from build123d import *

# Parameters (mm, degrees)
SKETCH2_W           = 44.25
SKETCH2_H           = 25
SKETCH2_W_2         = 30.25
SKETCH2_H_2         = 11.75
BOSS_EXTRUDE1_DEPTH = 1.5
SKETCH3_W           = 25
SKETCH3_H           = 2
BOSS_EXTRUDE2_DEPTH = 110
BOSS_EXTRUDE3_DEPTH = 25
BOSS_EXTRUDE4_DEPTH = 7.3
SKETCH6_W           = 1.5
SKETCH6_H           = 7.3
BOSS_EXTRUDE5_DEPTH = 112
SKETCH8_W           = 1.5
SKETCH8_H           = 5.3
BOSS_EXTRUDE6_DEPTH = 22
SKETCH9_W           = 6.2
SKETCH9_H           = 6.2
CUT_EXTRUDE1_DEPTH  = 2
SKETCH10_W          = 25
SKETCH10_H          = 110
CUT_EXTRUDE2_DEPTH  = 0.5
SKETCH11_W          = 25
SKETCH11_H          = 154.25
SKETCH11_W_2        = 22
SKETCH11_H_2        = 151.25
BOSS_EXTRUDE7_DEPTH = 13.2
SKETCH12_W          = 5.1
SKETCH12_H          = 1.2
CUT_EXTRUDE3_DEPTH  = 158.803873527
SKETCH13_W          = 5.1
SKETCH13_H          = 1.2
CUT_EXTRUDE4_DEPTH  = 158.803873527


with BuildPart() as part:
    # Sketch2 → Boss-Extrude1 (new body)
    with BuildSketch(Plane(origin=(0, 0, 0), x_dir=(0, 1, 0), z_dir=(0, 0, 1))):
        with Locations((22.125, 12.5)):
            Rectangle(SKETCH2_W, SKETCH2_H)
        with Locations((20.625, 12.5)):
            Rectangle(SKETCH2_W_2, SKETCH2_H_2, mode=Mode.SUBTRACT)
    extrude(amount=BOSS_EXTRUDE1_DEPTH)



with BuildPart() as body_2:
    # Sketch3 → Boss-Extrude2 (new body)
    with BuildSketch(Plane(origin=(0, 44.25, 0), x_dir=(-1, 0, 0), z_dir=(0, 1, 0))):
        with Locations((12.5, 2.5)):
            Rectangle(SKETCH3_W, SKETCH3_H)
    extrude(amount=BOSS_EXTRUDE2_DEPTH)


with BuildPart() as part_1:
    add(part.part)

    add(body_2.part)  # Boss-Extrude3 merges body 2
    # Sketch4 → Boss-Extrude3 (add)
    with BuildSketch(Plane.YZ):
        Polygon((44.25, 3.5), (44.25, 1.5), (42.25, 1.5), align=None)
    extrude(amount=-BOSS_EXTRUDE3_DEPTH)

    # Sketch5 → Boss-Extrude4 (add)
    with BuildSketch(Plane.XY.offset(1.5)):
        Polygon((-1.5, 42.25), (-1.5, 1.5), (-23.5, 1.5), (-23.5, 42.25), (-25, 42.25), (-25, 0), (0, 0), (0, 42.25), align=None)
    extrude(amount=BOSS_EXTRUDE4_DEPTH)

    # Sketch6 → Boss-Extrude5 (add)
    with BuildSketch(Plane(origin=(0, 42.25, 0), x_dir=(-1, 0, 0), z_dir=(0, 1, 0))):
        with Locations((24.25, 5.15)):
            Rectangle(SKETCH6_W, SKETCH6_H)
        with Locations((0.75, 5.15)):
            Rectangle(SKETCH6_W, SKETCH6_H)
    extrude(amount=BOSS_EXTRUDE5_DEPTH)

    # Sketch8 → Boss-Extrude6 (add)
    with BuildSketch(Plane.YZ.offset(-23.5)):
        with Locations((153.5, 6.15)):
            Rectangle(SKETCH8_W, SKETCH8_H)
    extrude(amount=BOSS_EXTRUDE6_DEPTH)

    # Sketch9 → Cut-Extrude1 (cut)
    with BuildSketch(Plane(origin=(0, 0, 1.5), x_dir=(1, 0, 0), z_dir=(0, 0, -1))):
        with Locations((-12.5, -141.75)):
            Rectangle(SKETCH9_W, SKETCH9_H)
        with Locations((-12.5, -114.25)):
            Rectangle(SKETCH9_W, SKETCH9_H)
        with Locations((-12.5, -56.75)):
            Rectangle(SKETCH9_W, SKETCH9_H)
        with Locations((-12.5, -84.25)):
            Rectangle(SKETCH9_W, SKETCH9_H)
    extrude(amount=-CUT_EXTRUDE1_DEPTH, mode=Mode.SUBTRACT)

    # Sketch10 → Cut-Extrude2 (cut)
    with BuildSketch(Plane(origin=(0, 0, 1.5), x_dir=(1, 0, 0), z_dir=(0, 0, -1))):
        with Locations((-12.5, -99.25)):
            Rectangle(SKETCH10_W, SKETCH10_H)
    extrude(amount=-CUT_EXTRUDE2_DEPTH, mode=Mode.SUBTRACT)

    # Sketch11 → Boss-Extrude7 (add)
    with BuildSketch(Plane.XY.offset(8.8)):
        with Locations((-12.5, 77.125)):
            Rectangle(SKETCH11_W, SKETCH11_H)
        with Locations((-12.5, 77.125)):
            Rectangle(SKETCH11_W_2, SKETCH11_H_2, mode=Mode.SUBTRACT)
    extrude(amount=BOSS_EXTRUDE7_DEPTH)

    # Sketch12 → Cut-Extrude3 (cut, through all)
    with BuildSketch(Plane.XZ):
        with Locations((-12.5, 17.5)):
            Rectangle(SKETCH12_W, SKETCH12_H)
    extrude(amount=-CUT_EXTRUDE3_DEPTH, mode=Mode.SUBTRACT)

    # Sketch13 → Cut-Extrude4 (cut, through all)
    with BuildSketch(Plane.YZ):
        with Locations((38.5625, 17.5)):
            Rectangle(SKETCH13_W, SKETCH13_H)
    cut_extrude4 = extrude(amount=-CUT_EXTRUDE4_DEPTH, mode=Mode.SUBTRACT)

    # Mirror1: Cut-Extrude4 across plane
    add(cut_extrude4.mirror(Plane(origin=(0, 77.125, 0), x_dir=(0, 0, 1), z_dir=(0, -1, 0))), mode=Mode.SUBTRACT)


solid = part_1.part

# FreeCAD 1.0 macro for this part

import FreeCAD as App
import Part
import Sketcher

V = App.Vector
Q = App.Units.Quantity

doc = App.newDocument("Part")
body = doc.addObject("PartDesign::Body", "Body")

# Sketch on XY plane
sketch1 = doc.addObject("Sketcher::SketchObject", "Sketch")
body.addObject(sketch1)
sketch1.AttachmentSupport = (doc.XY_Plane, [""])
sketch1.MapMode = "FlatFace"
sketch1.addGeometry(Part.LineSegment(V(-25, 0, 0), V(0, 0, 0)), False)
sketch1.addGeometry(Part.LineSegment(V(0, 0, 0), V(0, 44, 0)), False)
sketch1.addGeometry(Part.LineSegment(V(0, 44, 0), V(-25, 44, 0)), False)
sketch1.addGeometry(Part.LineSegment(V(-25, 44, 0), V(-25, 0, 0)), False)
sketch1.addGeometry(Part.LineSegment(V(-7, 36, 0), V(-7, 6, 0)), False)
sketch1.addGeometry(Part.LineSegment(V(-7, 6, 0), V(-18, 6, 0)), False)
sketch1.addGeometry(Part.LineSegment(V(-18, 6, 0), V(-18, 36, 0)), False)
sketch1.addGeometry(Part.LineSegment(V(-18, 36, 0), V(-7, 36, 0)), False)
sketch1.addConstraint(Sketcher.Constraint("Coincident", 0, 2, 1, 1))
sketch1.addConstraint(Sketcher.Constraint("Coincident", 1, 2, 2, 1))
sketch1.addConstraint(Sketcher.Constraint("Coincident", 2, 2, 3, 1))
sketch1.addConstraint(Sketcher.Constraint("Coincident", 3, 2, 0, 1))
sketch1.addConstraint(Sketcher.Constraint("Coincident", 4, 2, 5, 1))
sketch1.addConstraint(Sketcher.Constraint("Coincident", 5, 2, 6, 1))
sketch1.addConstraint(Sketcher.Constraint("Coincident", 6, 2, 7, 1))
sketch1.addConstraint(Sketcher.Constraint("Coincident", 7, 2, 4, 1))
sketch1.addConstraint(Sketcher.Constraint("Horizontal", 0))
sketch1.addConstraint(Sketcher.Constraint("Vertical", 1))
sketch1.addConstraint(Sketcher.Constraint("Horizontal", 2))
sketch1.addConstraint(Sketcher.Constraint("Vertical", 3))
sketch1.addConstraint(Sketcher.Constraint("Vertical", 4))
sketch1.addConstraint(Sketcher.Constraint("Horizontal", 5))
sketch1.addConstraint(Sketcher.Constraint("Vertical", 6))
sketch1.addConstraint(Sketcher.Constraint("Horizontal", 7))
sketch1.addConstraint(Sketcher.Constraint("Coincident", 0, 2, -1, 1))
sketch1.addConstraint(Sketcher.Constraint("DistanceX", 0, 1, 0, 2, Q("25 mm")))
sketch1.addConstraint(Sketcher.Constraint("DistanceX", 5, 2, 5, 1, Q("11.75 mm")))
sketch1.addConstraint(Sketcher.Constraint("DistanceY", 1, 1, 1, 2, Q("44.25 mm")))
sketch1.addConstraint(Sketcher.Constraint("DistanceY", 4, 2, 4, 1, Q("30.25 mm")))
sketch1.addConstraint(Sketcher.Constraint("DistanceY", -1, 1, 4, 2, Q("5.5 mm")))
sketch1.addConstraint(Sketcher.Constraint("DistanceX", 4, 2, -1, 1, Q("6.625 mm")))
pad1 = doc.addObject("PartDesign::Pad", "Pad")
body.addObject(pad1)
pad1.Profile = sketch1
pad1.Length = 1.5
body2 = doc.addObject("PartDesign::Body", "Body001")

# Sketch on XZ plane
sketch2 = doc.addObject("Sketcher::SketchObject", "Sketch001")
body2.addObject(sketch2)
sketch2.AttachmentSupport = (doc.getObject("XZ_Plane001"), [""])
sketch2.MapMode = "FlatFace"
sketch2.AttachmentOffset = App.Placement(V(0, 0, -44.25), App.Rotation())
sketch2.addGeometry(Part.LineSegment(V(0, 3.5, 0), V(0, 1.5, 0)), False)
sketch2.addGeometry(Part.LineSegment(V(0, 1.5, 0), V(-25, 1.5, 0)), False)
sketch2.addGeometry(Part.LineSegment(V(-25, 1.5, 0), V(-25, 3.5, 0)), False)
sketch2.addGeometry(Part.LineSegment(V(-25, 3.5, 0), V(0, 3.5, 0)), False)
sketch2.addConstraint(Sketcher.Constraint("Coincident", 0, 2, 1, 1))
sketch2.addConstraint(Sketcher.Constraint("Coincident", 1, 2, 2, 1))
sketch2.addConstraint(Sketcher.Constraint("Coincident", 2, 2, 3, 1))
sketch2.addConstraint(Sketcher.Constraint("Coincident", 3, 2, 0, 1))
sketch2.addConstraint(Sketcher.Constraint("Vertical", 0))
sketch2.addConstraint(Sketcher.Constraint("Horizontal", 1))
sketch2.addConstraint(Sketcher.Constraint("Vertical", 2))
sketch2.addConstraint(Sketcher.Constraint("Horizontal", 3))
sketch2.addConstraint(Sketcher.Constraint("PointOnObject", 0, 2, -2))
sketch2.addConstraint(Sketcher.Constraint("DistanceX", 1, 2, 1, 1, Q("25 mm")))
sketch2.addConstraint(Sketcher.Constraint("DistanceY", 0, 2, 0, 1, Q("2 mm")))
sketch2.addConstraint(Sketcher.Constraint("DistanceY", -1, 1, 0, 2, Q("1.5 mm")))
pad2 = doc.addObject("PartDesign::Pad", "Pad001")
body2.addObject(pad2)
pad2.Profile = sketch2
pad2.Length = 110
pad2.Reversed = True
body.AllowCompound = True
doc.recompute()

boolean = doc.addObject("PartDesign::Boolean", "Boolean")
body.addObject(boolean)
boolean.Type = "Fuse"
boolean.addObjects([body2])

# Sketch on YZ plane
sketch3 = doc.addObject("Sketcher::SketchObject", "Sketch002")
body.addObject(sketch3)
sketch3.AttachmentSupport = (doc.YZ_Plane, [""])
sketch3.MapMode = "FlatFace"
sketch3.addGeometry(Part.LineSegment(V(44.2, 1.5, 0), V(44.2, 3.5, 0)), False)
sketch3.addGeometry(Part.LineSegment(V(44.2, 3.5, 0), V(42.2, 1.5, 0)), False)
sketch3.addGeometry(Part.LineSegment(V(42.2, 1.5, 0), V(44.2, 1.5, 0)), False)
sketch3.addConstraint(Sketcher.Constraint("Coincident", 0, 2, 1, 1))
sketch3.addConstraint(Sketcher.Constraint("Coincident", 1, 2, 2, 1))
sketch3.addConstraint(Sketcher.Constraint("Coincident", 2, 2, 0, 1))
sketch3.addConstraint(Sketcher.Constraint("Vertical", 0))
sketch3.addConstraint(Sketcher.Constraint("Horizontal", 2))
sketch3.addConstraint(Sketcher.Constraint("Equal", 2, 0))
sketch3.addConstraint(Sketcher.Constraint("DistanceX", 2, 1, 2, 2, Q("2 mm")))
sketch3.addConstraint(Sketcher.Constraint("DistanceY", -1, 1, 0, 2, Q("3.5 mm")))
sketch3.addConstraint(Sketcher.Constraint("DistanceX", -1, 1, 0, 2, Q("44.25 mm")))
pad3 = doc.addObject("PartDesign::Pad", "Pad002")
body.addObject(pad3)
pad3.Profile = sketch3
pad3.Length = 25
pad3.Reversed = True

# Sketch on XY plane
sketch4 = doc.addObject("Sketcher::SketchObject", "Sketch003")
body.addObject(sketch4)
sketch4.AttachmentSupport = (doc.XY_Plane, [""])
sketch4.MapMode = "FlatFace"
sketch4.AttachmentOffset = App.Placement(V(0, 0, 1.5), App.Rotation())
sketch4.addGeometry(Part.LineSegment(V(-1.5, 42.2, 0), V(-1.5, 1.5, 0)), False)
sketch4.addGeometry(Part.LineSegment(V(-1.5, 1.5, 0), V(-23.5, 1.5, 0)), False)
sketch4.addGeometry(Part.LineSegment(V(-23.5, 1.5, 0), V(-23.5, 42.2, 0)), False)
sketch4.addGeometry(Part.LineSegment(V(-23.5, 42.2, 0), V(-25, 42.2, 0)), False)
sketch4.addGeometry(Part.LineSegment(V(-25, 42.2, 0), V(-25, 0, 0)), False)
sketch4.addGeometry(Part.LineSegment(V(-25, 0, 0), V(0, 0, 0)), False)
sketch4.addGeometry(Part.LineSegment(V(0, 0, 0), V(0, 42.2, 0)), False)
sketch4.addGeometry(Part.LineSegment(V(0, 42.2, 0), V(-1.5, 42.2, 0)), False)
sketch4.addConstraint(Sketcher.Constraint("Coincident", 0, 2, 1, 1))
sketch4.addConstraint(Sketcher.Constraint("Coincident", 1, 2, 2, 1))
sketch4.addConstraint(Sketcher.Constraint("Coincident", 2, 2, 3, 1))
sketch4.addConstraint(Sketcher.Constraint("Coincident", 3, 2, 4, 1))
sketch4.addConstraint(Sketcher.Constraint("Coincident", 4, 2, 5, 1))
sketch4.addConstraint(Sketcher.Constraint("Coincident", 5, 2, 6, 1))
sketch4.addConstraint(Sketcher.Constraint("Coincident", 6, 2, 7, 1))
sketch4.addConstraint(Sketcher.Constraint("Coincident", 7, 2, 0, 1))
sketch4.addConstraint(Sketcher.Constraint("Vertical", 0))
sketch4.addConstraint(Sketcher.Constraint("Horizontal", 1))
sketch4.addConstraint(Sketcher.Constraint("Vertical", 2))
sketch4.addConstraint(Sketcher.Constraint("Horizontal", 3))
sketch4.addConstraint(Sketcher.Constraint("Vertical", 4))
sketch4.addConstraint(Sketcher.Constraint("Horizontal", 5))
sketch4.addConstraint(Sketcher.Constraint("Vertical", 6))
sketch4.addConstraint(Sketcher.Constraint("Horizontal", 7))
sketch4.addConstraint(Sketcher.Constraint("Coincident", 5, 2, -1, 1))
sketch4.addConstraint(Sketcher.Constraint("Horizontal", 3, 2, 6, 2))
sketch4.addConstraint(Sketcher.Constraint("Equal", 3, 7))
sketch4.addConstraint(Sketcher.Constraint("DistanceX", 1, 2, 1, 1, Q("22 mm")))
sketch4.addConstraint(Sketcher.Constraint("DistanceX", 5, 1, 5, 2, Q("25 mm")))
sketch4.addConstraint(Sketcher.Constraint("DistanceY", 0, 2, 0, 1, Q("40.75 mm")))
sketch4.addConstraint(Sketcher.Constraint("DistanceY", 4, 2, 4, 1, Q("42.25 mm")))
pad4 = doc.addObject("PartDesign::Pad", "Pad003")
body.addObject(pad4)
pad4.Profile = sketch4
pad4.Length = 7.3

# Sketch on XZ plane
sketch5 = doc.addObject("Sketcher::SketchObject", "Sketch004")
body.addObject(sketch5)
sketch5.AttachmentSupport = (doc.XZ_Plane, [""])
sketch5.MapMode = "FlatFace"
sketch5.AttachmentOffset = App.Placement(V(0, 0, -42.25), App.Rotation())
sketch5.addGeometry(Part.LineSegment(V(-23.5, 8.8, 0), V(-23.5, 1.5, 0)), False)
sketch5.addGeometry(Part.LineSegment(V(-23.5, 1.5, 0), V(-25, 1.5, 0)), False)
sketch5.addGeometry(Part.LineSegment(V(-25, 1.5, 0), V(-25, 8.8, 0)), False)
sketch5.addGeometry(Part.LineSegment(V(-25, 8.8, 0), V(-23.5, 8.8, 0)), False)
sketch5.addGeometry(Part.LineSegment(V(0, 8.8, 0), V(0, 1.5, 0)), False)
sketch5.addGeometry(Part.LineSegment(V(0, 1.5, 0), V(-1.5, 1.5, 0)), False)
sketch5.addGeometry(Part.LineSegment(V(-1.5, 1.5, 0), V(-1.5, 8.8, 0)), False)
sketch5.addGeometry(Part.LineSegment(V(-1.5, 8.8, 0), V(0, 8.8, 0)), False)
sketch5.addConstraint(Sketcher.Constraint("Coincident", 0, 2, 1, 1))
sketch5.addConstraint(Sketcher.Constraint("Coincident", 1, 2, 2, 1))
sketch5.addConstraint(Sketcher.Constraint("Coincident", 2, 2, 3, 1))
sketch5.addConstraint(Sketcher.Constraint("Coincident", 3, 2, 0, 1))
sketch5.addConstraint(Sketcher.Constraint("Coincident", 4, 2, 5, 1))
sketch5.addConstraint(Sketcher.Constraint("Coincident", 5, 2, 6, 1))
sketch5.addConstraint(Sketcher.Constraint("Coincident", 6, 2, 7, 1))
sketch5.addConstraint(Sketcher.Constraint("Coincident", 7, 2, 4, 1))
sketch5.addConstraint(Sketcher.Constraint("Vertical", 0))
sketch5.addConstraint(Sketcher.Constraint("Horizontal", 1))
sketch5.addConstraint(Sketcher.Constraint("Vertical", 2))
sketch5.addConstraint(Sketcher.Constraint("Horizontal", 3))
sketch5.addConstraint(Sketcher.Constraint("Vertical", 4))
sketch5.addConstraint(Sketcher.Constraint("Horizontal", 5))
sketch5.addConstraint(Sketcher.Constraint("Vertical", 6))
sketch5.addConstraint(Sketcher.Constraint("Horizontal", 7))
sketch5.addConstraint(Sketcher.Constraint("PointOnObject", 4, 2, -2))
sketch5.addConstraint(Sketcher.Constraint("Horizontal", 1, 2, 4, 2))
sketch5.addConstraint(Sketcher.Constraint("Horizontal", 3, 2, 6, 2))
sketch5.addConstraint(Sketcher.Constraint("Equal", 3, 5))
sketch5.addConstraint(Sketcher.Constraint("DistanceX", 1, 2, 1, 1, Q("1.5 mm")))
sketch5.addConstraint(Sketcher.Constraint("DistanceY", 0, 2, 0, 1, Q("7.3 mm")))
sketch5.addConstraint(Sketcher.Constraint("DistanceX", 1, 2, -1, 1, Q("25 mm")))
sketch5.addConstraint(Sketcher.Constraint("DistanceY", -1, 1, 0, 2, Q("1.5 mm")))
pad5 = doc.addObject("PartDesign::Pad", "Pad004")
body.addObject(pad5)
pad5.Profile = sketch5
pad5.Length = 112
pad5.Reversed = True

# Sketch on YZ plane
sketch6 = doc.addObject("Sketcher::SketchObject", "Sketch005")
body.addObject(sketch6)
sketch6.AttachmentSupport = (doc.YZ_Plane, [""])
sketch6.MapMode = "FlatFace"
sketch6.AttachmentOffset = App.Placement(V(0, 0, -23.5), App.Rotation())
sketch6.addGeometry(Part.LineSegment(V(152.8, 8.8, 0), V(152.8, 3.5, 0)), False)
sketch6.addGeometry(Part.LineSegment(V(152.8, 3.5, 0), V(154.2, 3.5, 0)), False)
sketch6.addGeometry(Part.LineSegment(V(154.2, 3.5, 0), V(154.2, 8.8, 0)), False)
sketch6.addGeometry(Part.LineSegment(V(154.2, 8.8, 0), V(152.8, 8.8, 0)), False)
sketch6.addConstraint(Sketcher.Constraint("Coincident", 0, 2, 1, 1))
sketch6.addConstraint(Sketcher.Constraint("Coincident", 1, 2, 2, 1))
sketch6.addConstraint(Sketcher.Constraint("Coincident", 2, 2, 3, 1))
sketch6.addConstraint(Sketcher.Constraint("Coincident", 3, 2, 0, 1))
sketch6.addConstraint(Sketcher.Constraint("Vertical", 0))
sketch6.addConstraint(Sketcher.Constraint("Horizontal", 1))
sketch6.addConstraint(Sketcher.Constraint("Vertical", 2))
sketch6.addConstraint(Sketcher.Constraint("Horizontal", 3))
sketch6.addConstraint(Sketcher.Constraint("DistanceX", 1, 1, 1, 2, Q("1.5 mm")))
sketch6.addConstraint(Sketcher.Constraint("DistanceY", 0, 2, 0, 1, Q("5.3 mm")))
sketch6.addConstraint(Sketcher.Constraint("DistanceY", -1, 1, 0, 2, Q("3.5 mm")))
sketch6.addConstraint(Sketcher.Constraint("DistanceX", -1, 1, 0, 2, Q("152.75 mm")))
pad6 = doc.addObject("PartDesign::Pad", "Pad005")
body.addObject(pad6)
pad6.Profile = sketch6
pad6.Length = 22

# Sketch on XY plane
sketch7 = doc.addObject("Sketcher::SketchObject", "Sketch006")
body.addObject(sketch7)
sketch7.AttachmentSupport = (doc.XY_Plane, [""])
sketch7.MapMode = "FlatFace"
sketch7.AttachmentOffset = App.Placement(V(0, 0, 1.5), App.Rotation())
sketch7.addGeometry(Part.LineSegment(V(-16, 139, 0), V(-16, 145, 0)), False)
sketch7.addGeometry(Part.LineSegment(V(-16, 145, 0), V(-9, 145, 0)), False)
sketch7.addGeometry(Part.LineSegment(V(-9, 145, 0), V(-9, 139, 0)), False)
sketch7.addGeometry(Part.LineSegment(V(-9, 139, 0), V(-16, 139, 0)), False)
sketch7.addGeometry(Part.LineSegment(V(-16, 111, 0), V(-16, 117, 0)), False)
sketch7.addGeometry(Part.LineSegment(V(-16, 117, 0), V(-9, 117, 0)), False)
sketch7.addGeometry(Part.LineSegment(V(-9, 117, 0), V(-9, 111, 0)), False)
sketch7.addGeometry(Part.LineSegment(V(-9, 111, 0), V(-16, 111, 0)), False)
sketch7.addGeometry(Part.LineSegment(V(-16, 54, 0), V(-16, 60, 0)), False)
sketch7.addGeometry(Part.LineSegment(V(-16, 60, 0), V(-9, 60, 0)), False)
sketch7.addGeometry(Part.LineSegment(V(-9, 60, 0), V(-9, 54, 0)), False)
sketch7.addGeometry(Part.LineSegment(V(-9, 54, 0), V(-16, 54, 0)), False)
sketch7.addGeometry(Part.LineSegment(V(-16, 81, 0), V(-16, 87, 0)), False)
sketch7.addGeometry(Part.LineSegment(V(-16, 87, 0), V(-9, 87, 0)), False)
sketch7.addGeometry(Part.LineSegment(V(-9, 87, 0), V(-9, 81, 0)), False)
sketch7.addGeometry(Part.LineSegment(V(-9, 81, 0), V(-16, 81, 0)), False)
sketch7.addConstraint(Sketcher.Constraint("Coincident", 0, 2, 1, 1))
sketch7.addConstraint(Sketcher.Constraint("Coincident", 1, 2, 2, 1))
sketch7.addConstraint(Sketcher.Constraint("Coincident", 2, 2, 3, 1))
sketch7.addConstraint(Sketcher.Constraint("Coincident", 3, 2, 0, 1))
sketch7.addConstraint(Sketcher.Constraint("Coincident", 4, 2, 5, 1))
sketch7.addConstraint(Sketcher.Constraint("Coincident", 5, 2, 6, 1))
sketch7.addConstraint(Sketcher.Constraint("Coincident", 6, 2, 7, 1))
sketch7.addConstraint(Sketcher.Constraint("Coincident", 7, 2, 4, 1))
sketch7.addConstraint(Sketcher.Constraint("Coincident", 8, 2, 9, 1))
sketch7.addConstraint(Sketcher.Constraint("Coincident", 9, 2, 10, 1))
sketch7.addConstraint(Sketcher.Constraint("Coincident", 10, 2, 11, 1))
sketch7.addConstraint(Sketcher.Constraint("Coincident", 11, 2, 8, 1))
sketch7.addConstraint(Sketcher.Constraint("Coincident", 12, 2, 13, 1))
sketch7.addConstraint(Sketcher.Constraint("Coincident", 13, 2, 14, 1))
sketch7.addConstraint(Sketcher.Constraint("Coincident", 14, 2, 15, 1))
sketch7.addConstraint(Sketcher.Constraint("Coincident", 15, 2, 12, 1))
sketch7.addConstraint(Sketcher.Constraint("Vertical", 0))
sketch7.addConstraint(Sketcher.Constraint("Horizontal", 1))
sketch7.addConstraint(Sketcher.Constraint("Vertical", 2))
sketch7.addConstraint(Sketcher.Constraint("Horizontal", 3))
sketch7.addConstraint(Sketcher.Constraint("Vertical", 4))
sketch7.addConstraint(Sketcher.Constraint("Horizontal", 5))
sketch7.addConstraint(Sketcher.Constraint("Vertical", 6))
sketch7.addConstraint(Sketcher.Constraint("Horizontal", 7))
sketch7.addConstraint(Sketcher.Constraint("Vertical", 8))
sketch7.addConstraint(Sketcher.Constraint("Horizontal", 9))
sketch7.addConstraint(Sketcher.Constraint("Vertical", 10))
sketch7.addConstraint(Sketcher.Constraint("Horizontal", 11))
sketch7.addConstraint(Sketcher.Constraint("Vertical", 12))
sketch7.addConstraint(Sketcher.Constraint("Horizontal", 13))
sketch7.addConstraint(Sketcher.Constraint("Vertical", 14))
sketch7.addConstraint(Sketcher.Constraint("Horizontal", 15))
sketch7.addConstraint(Sketcher.Constraint("Vertical", 3, 2, 4, 2))
sketch7.addConstraint(Sketcher.Constraint("Vertical", 2, 2, 5, 2))
sketch7.addConstraint(Sketcher.Constraint("Vertical", 7, 2, 8, 2))
sketch7.addConstraint(Sketcher.Constraint("Vertical", 6, 2, 9, 2))
sketch7.addConstraint(Sketcher.Constraint("Vertical", 11, 2, 12, 2))
sketch7.addConstraint(Sketcher.Constraint("Vertical", 10, 2, 13, 2))
sketch7.addConstraint(Sketcher.Constraint("Equal", 15, 0))
sketch7.addConstraint(Sketcher.Constraint("Equal", 2, 4))
sketch7.addConstraint(Sketcher.Constraint("Equal", 6, 8))
sketch7.addConstraint(Sketcher.Constraint("Equal", 10, 12))
sketch7.addConstraint(Sketcher.Constraint("DistanceX", 1, 1, 1, 2, Q("6.2 mm")))
sketch7.addConstraint(Sketcher.Constraint("DistanceY", 12, 2, 4, 2, Q("30 mm")))
sketch7.addConstraint(Sketcher.Constraint("DistanceX", 0, 2, -1, 1, Q("15.6 mm")))
sketch7.addConstraint(Sketcher.Constraint("DistanceY", 4, 2, 3, 2, Q("21.3 mm")))
sketch7.addConstraint(Sketcher.Constraint("DistanceY", 8, 2, 7, 2, Q("51.3 mm")))
sketch7.addConstraint(Sketcher.Constraint("DistanceY", -1, 1, 0, 2, Q("144.85 mm")))
pocket1 = doc.addObject("PartDesign::Pocket", "Pocket")
body.addObject(pocket1)
pocket1.Profile = sketch7
pocket1.Length = 2
pocket1.Reversed = True

# Sketch on XY plane
sketch8 = doc.addObject("Sketcher::SketchObject", "Sketch007")
body.addObject(sketch8)
sketch8.AttachmentSupport = (doc.XY_Plane, [""])
sketch8.MapMode = "FlatFace"
sketch8.AttachmentOffset = App.Placement(V(0, 0, 1.5), App.Rotation())
sketch8.addGeometry(Part.LineSegment(V(-25, 44, 0), V(-25, 154, 0)), False)
sketch8.addGeometry(Part.LineSegment(V(-25, 154, 0), V(0, 154, 0)), False)
sketch8.addGeometry(Part.LineSegment(V(0, 154, 0), V(0, 44, 0)), False)
sketch8.addGeometry(Part.LineSegment(V(0, 44, 0), V(-25, 44, 0)), False)
sketch8.addConstraint(Sketcher.Constraint("Coincident", 0, 2, 1, 1))
sketch8.addConstraint(Sketcher.Constraint("Coincident", 1, 2, 2, 1))
sketch8.addConstraint(Sketcher.Constraint("Coincident", 2, 2, 3, 1))
sketch8.addConstraint(Sketcher.Constraint("Coincident", 3, 2, 0, 1))
sketch8.addConstraint(Sketcher.Constraint("Vertical", 0))
sketch8.addConstraint(Sketcher.Constraint("Horizontal", 1))
sketch8.addConstraint(Sketcher.Constraint("Vertical", 2))
sketch8.addConstraint(Sketcher.Constraint("Horizontal", 3))
sketch8.addConstraint(Sketcher.Constraint("PointOnObject", 1, 2, -2))
sketch8.addConstraint(Sketcher.Constraint("DistanceX", 1, 1, 1, 2, Q("25 mm")))
sketch8.addConstraint(Sketcher.Constraint("DistanceY", 0, 1, 0, 2, Q("110 mm")))
sketch8.addConstraint(Sketcher.Constraint("DistanceY", -1, 1, 0, 2, Q("154.25 mm")))
pocket2 = doc.addObject("PartDesign::Pocket", "Pocket001")
body.addObject(pocket2)
pocket2.Profile = sketch8
pocket2.Length = 0.5
pocket2.Reversed = True

# Sketch on XY plane
sketch9 = doc.addObject("Sketcher::SketchObject", "Sketch008")
body.addObject(sketch9)
sketch9.AttachmentSupport = (doc.XY_Plane, [""])
sketch9.MapMode = "FlatFace"
sketch9.AttachmentOffset = App.Placement(V(0, 0, 8.8), App.Rotation())
sketch9.addGeometry(Part.LineSegment(V(-25, 154, 0), V(-25, 0, 0)), False)
sketch9.addGeometry(Part.LineSegment(V(-25, 0, 0), V(0, 0, 0)), False)
sketch9.addGeometry(Part.LineSegment(V(0, 0, 0), V(0, 154, 0)), False)
sketch9.addGeometry(Part.LineSegment(V(0, 154, 0), V(-25, 154, 0)), False)
sketch9.addGeometry(Part.LineSegment(V(-2, 2, 0), V(-24, 2, 0)), False)
sketch9.addGeometry(Part.LineSegment(V(-24, 2, 0), V(-24, 153, 0)), False)
sketch9.addGeometry(Part.LineSegment(V(-24, 153, 0), V(-2, 153, 0)), False)
sketch9.addGeometry(Part.LineSegment(V(-2, 153, 0), V(-2, 2, 0)), False)
sketch9.addConstraint(Sketcher.Constraint("Coincident", 0, 2, 1, 1))
sketch9.addConstraint(Sketcher.Constraint("Coincident", 1, 2, 2, 1))
sketch9.addConstraint(Sketcher.Constraint("Coincident", 2, 2, 3, 1))
sketch9.addConstraint(Sketcher.Constraint("Coincident", 3, 2, 0, 1))
sketch9.addConstraint(Sketcher.Constraint("Coincident", 4, 2, 5, 1))
sketch9.addConstraint(Sketcher.Constraint("Coincident", 5, 2, 6, 1))
sketch9.addConstraint(Sketcher.Constraint("Coincident", 6, 2, 7, 1))
sketch9.addConstraint(Sketcher.Constraint("Coincident", 7, 2, 4, 1))
sketch9.addConstraint(Sketcher.Constraint("Vertical", 0))
sketch9.addConstraint(Sketcher.Constraint("Horizontal", 1))
sketch9.addConstraint(Sketcher.Constraint("Vertical", 2))
sketch9.addConstraint(Sketcher.Constraint("Horizontal", 3))
sketch9.addConstraint(Sketcher.Constraint("Horizontal", 4))
sketch9.addConstraint(Sketcher.Constraint("Vertical", 5))
sketch9.addConstraint(Sketcher.Constraint("Horizontal", 6))
sketch9.addConstraint(Sketcher.Constraint("Vertical", 7))
sketch9.addConstraint(Sketcher.Constraint("Coincident", 1, 2, -1, 1))
sketch9.addConstraint(Sketcher.Constraint("DistanceX", 1, 1, 1, 2, Q("25 mm")))
sketch9.addConstraint(Sketcher.Constraint("DistanceX", 4, 2, 4, 1, Q("22 mm")))
sketch9.addConstraint(Sketcher.Constraint("DistanceY", 0, 2, 0, 1, Q("154.25 mm")))
sketch9.addConstraint(Sketcher.Constraint("DistanceY", 5, 1, 5, 2, Q("151.25 mm")))
sketch9.addConstraint(Sketcher.Constraint("DistanceX", 4, 2, -1, 1, Q("23.5 mm")))
sketch9.addConstraint(Sketcher.Constraint("DistanceY", -1, 1, 4, 2, Q("1.5 mm")))
pad7 = doc.addObject("PartDesign::Pad", "Pad006")
body.addObject(pad7)
pad7.Profile = sketch9
pad7.Length = 13.2

# Sketch on XZ plane
sketch10 = doc.addObject("Sketcher::SketchObject", "Sketch009")
body.addObject(sketch10)
sketch10.AttachmentSupport = (doc.XZ_Plane, [""])
sketch10.MapMode = "FlatFace"
sketch10.addGeometry(Part.LineSegment(V(-15.1, 18.1, 0), V(-15.1, 16.9, 0)), False)
sketch10.addGeometry(Part.LineSegment(V(-15.1, 16.9, 0), V(-9.9, 16.9, 0)), False)
sketch10.addGeometry(Part.LineSegment(V(-9.9, 16.9, 0), V(-9.9, 18.1, 0)), False)
sketch10.addGeometry(Part.LineSegment(V(-9.9, 18.1, 0), V(-15.1, 18.1, 0)), False)
sketch10.addConstraint(Sketcher.Constraint("Coincident", 0, 2, 1, 1))
sketch10.addConstraint(Sketcher.Constraint("Coincident", 1, 2, 2, 1))
sketch10.addConstraint(Sketcher.Constraint("Coincident", 2, 2, 3, 1))
sketch10.addConstraint(Sketcher.Constraint("Coincident", 3, 2, 0, 1))
sketch10.addConstraint(Sketcher.Constraint("Vertical", 0))
sketch10.addConstraint(Sketcher.Constraint("Horizontal", 1))
sketch10.addConstraint(Sketcher.Constraint("Vertical", 2))
sketch10.addConstraint(Sketcher.Constraint("Horizontal", 3))
sketch10.addConstraint(Sketcher.Constraint("DistanceX", 1, 1, 1, 2, Q("5.1 mm")))
sketch10.addConstraint(Sketcher.Constraint("DistanceY", 0, 2, 0, 1, Q("1.2 mm")))
sketch10.addConstraint(Sketcher.Constraint("DistanceY", -1, 1, 0, 2, Q("16.9 mm")))
sketch10.addConstraint(Sketcher.Constraint("DistanceX", 0, 2, -1, 1, Q("15.05 mm")))
pocket3 = doc.addObject("PartDesign::Pocket", "Pocket002")
body.addObject(pocket3)
pocket3.Profile = sketch10
pocket3.Type = "ThroughAll"

# Sketch on YZ plane
sketch11 = doc.addObject("Sketcher::SketchObject", "Sketch010")
body.addObject(sketch11)
sketch11.AttachmentSupport = (doc.YZ_Plane, [""])
sketch11.MapMode = "FlatFace"
sketch11.addGeometry(Part.LineSegment(V(36, 18.1, 0), V(36, 16.9, 0)), False)
sketch11.addGeometry(Part.LineSegment(V(36, 16.9, 0), V(41.1, 16.9, 0)), False)
sketch11.addGeometry(Part.LineSegment(V(41.1, 16.9, 0), V(41.1, 18.1, 0)), False)
sketch11.addGeometry(Part.LineSegment(V(41.1, 18.1, 0), V(36, 18.1, 0)), False)
sketch11.addConstraint(Sketcher.Constraint("Coincident", 0, 2, 1, 1))
sketch11.addConstraint(Sketcher.Constraint("Coincident", 1, 2, 2, 1))
sketch11.addConstraint(Sketcher.Constraint("Coincident", 2, 2, 3, 1))
sketch11.addConstraint(Sketcher.Constraint("Coincident", 3, 2, 0, 1))
sketch11.addConstraint(Sketcher.Constraint("Vertical", 0))
sketch11.addConstraint(Sketcher.Constraint("Horizontal", 1))
sketch11.addConstraint(Sketcher.Constraint("Vertical", 2))
sketch11.addConstraint(Sketcher.Constraint("Horizontal", 3))
sketch11.addConstraint(Sketcher.Constraint("DistanceX", 1, 1, 1, 2, Q("5.1 mm")))
sketch11.addConstraint(Sketcher.Constraint("DistanceY", 0, 2, 0, 1, Q("1.2 mm")))
sketch11.addConstraint(Sketcher.Constraint("DistanceY", -1, 1, 0, 2, Q("16.9 mm")))
sketch11.addConstraint(Sketcher.Constraint("DistanceX", -1, 1, 0, 2, Q("36.0125 mm")))
pocket4 = doc.addObject("PartDesign::Pocket", "Pocket003")
body.addObject(pocket4)
pocket4.Profile = sketch11
pocket4.Type = "ThroughAll"
doc.recompute()

datumplane = doc.addObject("PartDesign::Plane", "DatumPlane")
body.addObject(datumplane)
datumplane.AttachmentSupport = (doc.XZ_Plane, [""])
datumplane.MapMode = "FlatFace"
datumplane.AttachmentOffset = App.Placement(V(0, 0, -77.125), App.Rotation())
mirrored = doc.addObject("PartDesign::Mirrored", "Mirrored")
body.addObject(mirrored)
mirrored.Originals = [pocket4]
mirrored.MirrorPlane = (datumplane, [""])
body.Tip = mirrored

doc.recompute()
